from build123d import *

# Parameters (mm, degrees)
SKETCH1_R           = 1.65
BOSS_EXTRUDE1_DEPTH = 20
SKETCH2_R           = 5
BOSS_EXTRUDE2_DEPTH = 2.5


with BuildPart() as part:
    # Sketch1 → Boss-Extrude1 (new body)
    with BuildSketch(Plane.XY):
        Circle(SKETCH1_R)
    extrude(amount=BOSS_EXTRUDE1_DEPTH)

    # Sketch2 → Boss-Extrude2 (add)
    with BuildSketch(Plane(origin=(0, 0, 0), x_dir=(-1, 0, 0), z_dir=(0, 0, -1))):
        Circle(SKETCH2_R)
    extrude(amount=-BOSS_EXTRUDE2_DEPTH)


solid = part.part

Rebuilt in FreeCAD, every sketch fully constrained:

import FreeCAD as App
import Part
import Sketcher
from FreeCAD import Vector

doc = App.newDocument("Part")
body = doc.addObject("PartDesign::Body", "Body")

# Sketch on XY plane
sketch1 = body.newObject("Sketcher::SketchObject", "Sketch")
sketch1.AttachmentSupport = (doc.getObject("XY_Plane"), [""])
sketch1.MapMode = "FlatFace"
sketch1.addGeometry(Part.Circle(Vector(0, 0, 0), Vector(0, 0, 1), 1.6), False)
sketch1.addConstraint(Sketcher.Constraint("Coincident", 0, 3, -1, 1))
sketch1.addConstraint(Sketcher.Constraint("Diameter", 0, 3.3))
pad1 = body.newObject("PartDesign::Pad", "Pad")
pad1.Profile = sketch1
pad1.Length = 20

# Sketch on XY plane
sketch2 = body.newObject("Sketcher::SketchObject", "Sketch001")
sketch2.AttachmentSupport = (doc.getObject("XY_Plane"), [""])
sketch2.MapMode = "FlatFace"
sketch2.addGeometry(Part.Circle(Vector(0, 0, 0), Vector(0, 0, 1), 5), False)
sketch2.addConstraint(Sketcher.Constraint("Coincident", 0, 3, -1, 1))
sketch2.addConstraint(Sketcher.Constraint("Diameter", 0, 10.0))
pad2 = body.newObject("PartDesign::Pad", "Pad001")
pad2.Profile = sketch2
pad2.Length = 2.5

doc.recompute()
